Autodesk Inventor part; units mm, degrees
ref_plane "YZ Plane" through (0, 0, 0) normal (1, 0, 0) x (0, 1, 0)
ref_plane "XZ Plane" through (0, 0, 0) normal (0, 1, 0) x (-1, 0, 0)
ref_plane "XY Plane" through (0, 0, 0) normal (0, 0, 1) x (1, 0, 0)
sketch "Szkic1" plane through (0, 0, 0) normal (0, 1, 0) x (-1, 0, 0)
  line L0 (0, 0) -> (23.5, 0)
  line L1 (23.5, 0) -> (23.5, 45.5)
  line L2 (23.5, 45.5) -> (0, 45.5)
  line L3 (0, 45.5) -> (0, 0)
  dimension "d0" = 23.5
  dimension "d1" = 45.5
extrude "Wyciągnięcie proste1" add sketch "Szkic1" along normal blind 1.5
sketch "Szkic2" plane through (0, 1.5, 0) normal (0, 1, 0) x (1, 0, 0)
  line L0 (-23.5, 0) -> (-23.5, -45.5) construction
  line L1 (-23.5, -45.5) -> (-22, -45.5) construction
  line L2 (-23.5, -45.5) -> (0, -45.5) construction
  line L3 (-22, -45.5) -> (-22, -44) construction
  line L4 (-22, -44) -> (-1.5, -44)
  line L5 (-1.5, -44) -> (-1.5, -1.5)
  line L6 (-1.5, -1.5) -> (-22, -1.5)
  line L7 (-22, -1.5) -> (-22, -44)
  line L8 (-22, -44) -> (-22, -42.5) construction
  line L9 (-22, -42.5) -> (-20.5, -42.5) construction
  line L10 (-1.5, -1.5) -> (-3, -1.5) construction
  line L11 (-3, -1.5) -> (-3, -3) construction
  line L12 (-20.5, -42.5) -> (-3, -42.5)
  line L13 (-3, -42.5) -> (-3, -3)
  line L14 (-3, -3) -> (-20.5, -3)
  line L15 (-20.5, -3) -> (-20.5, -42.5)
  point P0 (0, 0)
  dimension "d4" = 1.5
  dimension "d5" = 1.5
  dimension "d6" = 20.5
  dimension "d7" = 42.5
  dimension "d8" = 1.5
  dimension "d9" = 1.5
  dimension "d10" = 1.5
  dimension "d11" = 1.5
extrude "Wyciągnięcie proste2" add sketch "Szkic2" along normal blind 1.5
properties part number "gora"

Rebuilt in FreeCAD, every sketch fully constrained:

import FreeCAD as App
import Part
import Sketcher
from FreeCAD import Vector
Q = App.Units.Quantity

doc = App.newDocument("Part")
body = doc.addObject("PartDesign::Body", "Body")

# Sketch on XZ plane
sketch1 = body.newObject("Sketcher::SketchObject", "Sketch")
sketch1.AttachmentSupport = (doc.getObject("XZ_Plane"), [""])
sketch1.MapMode = "FlatFace"
sketch1.addGeometry([
    Part.LineSegment(Vector(0, 46, 0), Vector(0, 0, 0)),
    Part.LineSegment(Vector(0, 0, 0), Vector(-24, 0, 0)),
    Part.LineSegment(Vector(-24, 0, 0), Vector(-24, 46, 0)),
    Part.LineSegment(Vector(-24, 46, 0), Vector(0, 46, 0)),
], False)
sketch1.addConstraint([
    Sketcher.Constraint("Coincident", 0, 2, 1, 1),
    Sketcher.Constraint("Coincident", 1, 2, 2, 1),
    Sketcher.Constraint("Coincident", 2, 2, 3, 1),
    Sketcher.Constraint("Coincident", 3, 2, 0, 1),
    Sketcher.Constraint("Vertical", 0),
    Sketcher.Constraint("Horizontal", 1),
    Sketcher.Constraint("Vertical", 2),
    Sketcher.Constraint("Horizontal", 3),
    Sketcher.Constraint("Coincident", 0, 2, -1, 1),
    Sketcher.Constraint("DistanceX", 1, 2, 1, 1, Q("23.5 mm")),
    Sketcher.Constraint("DistanceY", 0, 2, 0, 1, Q("45.5 mm")),
])
pad1 = body.newObject("PartDesign::Pad", "Pad")
pad1.Profile = sketch1
pad1.Length = 1.5
pad1.Reversed = True

# Sketch on XZ plane
sketch2 = body.newObject("Sketcher::SketchObject", "Sketch001")
sketch2.AttachmentSupport = (doc.getObject("XZ_Plane"), [""])
sketch2.MapMode = "FlatFace"
sketch2.AttachmentOffset = App.Placement(Vector(0, 0, -1.5), App.Rotation())
sketch2.addGeometry([
    Part.LineSegment(Vector(-22, 2, 0), Vector(-22, 44, 0)),  # 0
    Part.LineSegment(Vector(-22, 44, 0), Vector(-2, 44, 0)),  # 1
    Part.LineSegment(Vector(-2, 44, 0), Vector(-2, 2, 0)),  # 2
    Part.LineSegment(Vector(-2, 2, 0), Vector(-22, 2, 0)),  # 3
    Part.LineSegment(Vector(-3, 42, 0), Vector(-20, 42, 0)),  # 4
    Part.LineSegment(Vector(-20, 42, 0), Vector(-20, 3, 0)),  # 5
    Part.LineSegment(Vector(-20, 3, 0), Vector(-3, 3, 0)),  # 6
    Part.LineSegment(Vector(-3, 3, 0), Vector(-3, 42, 0)),  # 7
], False)
sketch2.addConstraint([
    Sketcher.Constraint("Coincident", 0, 2, 1, 1),
    Sketcher.Constraint("Coincident", 1, 2, 2, 1),
    Sketcher.Constraint("Coincident", 2, 2, 3, 1),
    Sketcher.Constraint("Coincident", 3, 2, 0, 1),
    Sketcher.Constraint("Coincident", 4, 2, 5, 1),
    Sketcher.Constraint("Coincident", 5, 2, 6, 1),
    Sketcher.Constraint("Coincident", 6, 2, 7, 1),
    Sketcher.Constraint("Coincident", 7, 2, 4, 1),
    Sketcher.Constraint("Vertical", 0),
    Sketcher.Constraint("Horizontal", 1),
    Sketcher.Constraint("Vertical", 2),
    Sketcher.Constraint("Horizontal", 3),
    Sketcher.Constraint("Horizontal", 4),
    Sketcher.Constraint("Vertical", 5),
    Sketcher.Constraint("Horizontal", 6),
    Sketcher.Constraint("Vertical", 7),
    Sketcher.Constraint("DistanceX", 1, 1, 1, 2, Q("20.5 mm")),
    Sketcher.Constraint("DistanceY", 0, 1, 0, 2, Q("42.5 mm")),
    Sketcher.Constraint("DistanceX", 1, 2, -1, 1, Q("1.5 mm")),
    Sketcher.Constraint("DistanceY", -1, 1, 2, 2, Q("1.5 mm")),
    Sketcher.Constraint("DistanceX", 4, 2, -1, 1, Q("20.5 mm")),
    Sketcher.Constraint("DistanceY", -1, 1, 4, 2, Q("42.5 mm")),
    Sketcher.Constraint("DistanceY", 3, 2, 5, 2, Q("1.5 mm")),
    Sketcher.Constraint("DistanceX", 6, 2, 2, 2, Q("1.5 mm")),
])
pad2 = body.newObject("PartDesign::Pad", "Pad001")
pad2.Profile = sketch2
pad2.Length = 1.5
pad2.Reversed = True

doc.recompute()
